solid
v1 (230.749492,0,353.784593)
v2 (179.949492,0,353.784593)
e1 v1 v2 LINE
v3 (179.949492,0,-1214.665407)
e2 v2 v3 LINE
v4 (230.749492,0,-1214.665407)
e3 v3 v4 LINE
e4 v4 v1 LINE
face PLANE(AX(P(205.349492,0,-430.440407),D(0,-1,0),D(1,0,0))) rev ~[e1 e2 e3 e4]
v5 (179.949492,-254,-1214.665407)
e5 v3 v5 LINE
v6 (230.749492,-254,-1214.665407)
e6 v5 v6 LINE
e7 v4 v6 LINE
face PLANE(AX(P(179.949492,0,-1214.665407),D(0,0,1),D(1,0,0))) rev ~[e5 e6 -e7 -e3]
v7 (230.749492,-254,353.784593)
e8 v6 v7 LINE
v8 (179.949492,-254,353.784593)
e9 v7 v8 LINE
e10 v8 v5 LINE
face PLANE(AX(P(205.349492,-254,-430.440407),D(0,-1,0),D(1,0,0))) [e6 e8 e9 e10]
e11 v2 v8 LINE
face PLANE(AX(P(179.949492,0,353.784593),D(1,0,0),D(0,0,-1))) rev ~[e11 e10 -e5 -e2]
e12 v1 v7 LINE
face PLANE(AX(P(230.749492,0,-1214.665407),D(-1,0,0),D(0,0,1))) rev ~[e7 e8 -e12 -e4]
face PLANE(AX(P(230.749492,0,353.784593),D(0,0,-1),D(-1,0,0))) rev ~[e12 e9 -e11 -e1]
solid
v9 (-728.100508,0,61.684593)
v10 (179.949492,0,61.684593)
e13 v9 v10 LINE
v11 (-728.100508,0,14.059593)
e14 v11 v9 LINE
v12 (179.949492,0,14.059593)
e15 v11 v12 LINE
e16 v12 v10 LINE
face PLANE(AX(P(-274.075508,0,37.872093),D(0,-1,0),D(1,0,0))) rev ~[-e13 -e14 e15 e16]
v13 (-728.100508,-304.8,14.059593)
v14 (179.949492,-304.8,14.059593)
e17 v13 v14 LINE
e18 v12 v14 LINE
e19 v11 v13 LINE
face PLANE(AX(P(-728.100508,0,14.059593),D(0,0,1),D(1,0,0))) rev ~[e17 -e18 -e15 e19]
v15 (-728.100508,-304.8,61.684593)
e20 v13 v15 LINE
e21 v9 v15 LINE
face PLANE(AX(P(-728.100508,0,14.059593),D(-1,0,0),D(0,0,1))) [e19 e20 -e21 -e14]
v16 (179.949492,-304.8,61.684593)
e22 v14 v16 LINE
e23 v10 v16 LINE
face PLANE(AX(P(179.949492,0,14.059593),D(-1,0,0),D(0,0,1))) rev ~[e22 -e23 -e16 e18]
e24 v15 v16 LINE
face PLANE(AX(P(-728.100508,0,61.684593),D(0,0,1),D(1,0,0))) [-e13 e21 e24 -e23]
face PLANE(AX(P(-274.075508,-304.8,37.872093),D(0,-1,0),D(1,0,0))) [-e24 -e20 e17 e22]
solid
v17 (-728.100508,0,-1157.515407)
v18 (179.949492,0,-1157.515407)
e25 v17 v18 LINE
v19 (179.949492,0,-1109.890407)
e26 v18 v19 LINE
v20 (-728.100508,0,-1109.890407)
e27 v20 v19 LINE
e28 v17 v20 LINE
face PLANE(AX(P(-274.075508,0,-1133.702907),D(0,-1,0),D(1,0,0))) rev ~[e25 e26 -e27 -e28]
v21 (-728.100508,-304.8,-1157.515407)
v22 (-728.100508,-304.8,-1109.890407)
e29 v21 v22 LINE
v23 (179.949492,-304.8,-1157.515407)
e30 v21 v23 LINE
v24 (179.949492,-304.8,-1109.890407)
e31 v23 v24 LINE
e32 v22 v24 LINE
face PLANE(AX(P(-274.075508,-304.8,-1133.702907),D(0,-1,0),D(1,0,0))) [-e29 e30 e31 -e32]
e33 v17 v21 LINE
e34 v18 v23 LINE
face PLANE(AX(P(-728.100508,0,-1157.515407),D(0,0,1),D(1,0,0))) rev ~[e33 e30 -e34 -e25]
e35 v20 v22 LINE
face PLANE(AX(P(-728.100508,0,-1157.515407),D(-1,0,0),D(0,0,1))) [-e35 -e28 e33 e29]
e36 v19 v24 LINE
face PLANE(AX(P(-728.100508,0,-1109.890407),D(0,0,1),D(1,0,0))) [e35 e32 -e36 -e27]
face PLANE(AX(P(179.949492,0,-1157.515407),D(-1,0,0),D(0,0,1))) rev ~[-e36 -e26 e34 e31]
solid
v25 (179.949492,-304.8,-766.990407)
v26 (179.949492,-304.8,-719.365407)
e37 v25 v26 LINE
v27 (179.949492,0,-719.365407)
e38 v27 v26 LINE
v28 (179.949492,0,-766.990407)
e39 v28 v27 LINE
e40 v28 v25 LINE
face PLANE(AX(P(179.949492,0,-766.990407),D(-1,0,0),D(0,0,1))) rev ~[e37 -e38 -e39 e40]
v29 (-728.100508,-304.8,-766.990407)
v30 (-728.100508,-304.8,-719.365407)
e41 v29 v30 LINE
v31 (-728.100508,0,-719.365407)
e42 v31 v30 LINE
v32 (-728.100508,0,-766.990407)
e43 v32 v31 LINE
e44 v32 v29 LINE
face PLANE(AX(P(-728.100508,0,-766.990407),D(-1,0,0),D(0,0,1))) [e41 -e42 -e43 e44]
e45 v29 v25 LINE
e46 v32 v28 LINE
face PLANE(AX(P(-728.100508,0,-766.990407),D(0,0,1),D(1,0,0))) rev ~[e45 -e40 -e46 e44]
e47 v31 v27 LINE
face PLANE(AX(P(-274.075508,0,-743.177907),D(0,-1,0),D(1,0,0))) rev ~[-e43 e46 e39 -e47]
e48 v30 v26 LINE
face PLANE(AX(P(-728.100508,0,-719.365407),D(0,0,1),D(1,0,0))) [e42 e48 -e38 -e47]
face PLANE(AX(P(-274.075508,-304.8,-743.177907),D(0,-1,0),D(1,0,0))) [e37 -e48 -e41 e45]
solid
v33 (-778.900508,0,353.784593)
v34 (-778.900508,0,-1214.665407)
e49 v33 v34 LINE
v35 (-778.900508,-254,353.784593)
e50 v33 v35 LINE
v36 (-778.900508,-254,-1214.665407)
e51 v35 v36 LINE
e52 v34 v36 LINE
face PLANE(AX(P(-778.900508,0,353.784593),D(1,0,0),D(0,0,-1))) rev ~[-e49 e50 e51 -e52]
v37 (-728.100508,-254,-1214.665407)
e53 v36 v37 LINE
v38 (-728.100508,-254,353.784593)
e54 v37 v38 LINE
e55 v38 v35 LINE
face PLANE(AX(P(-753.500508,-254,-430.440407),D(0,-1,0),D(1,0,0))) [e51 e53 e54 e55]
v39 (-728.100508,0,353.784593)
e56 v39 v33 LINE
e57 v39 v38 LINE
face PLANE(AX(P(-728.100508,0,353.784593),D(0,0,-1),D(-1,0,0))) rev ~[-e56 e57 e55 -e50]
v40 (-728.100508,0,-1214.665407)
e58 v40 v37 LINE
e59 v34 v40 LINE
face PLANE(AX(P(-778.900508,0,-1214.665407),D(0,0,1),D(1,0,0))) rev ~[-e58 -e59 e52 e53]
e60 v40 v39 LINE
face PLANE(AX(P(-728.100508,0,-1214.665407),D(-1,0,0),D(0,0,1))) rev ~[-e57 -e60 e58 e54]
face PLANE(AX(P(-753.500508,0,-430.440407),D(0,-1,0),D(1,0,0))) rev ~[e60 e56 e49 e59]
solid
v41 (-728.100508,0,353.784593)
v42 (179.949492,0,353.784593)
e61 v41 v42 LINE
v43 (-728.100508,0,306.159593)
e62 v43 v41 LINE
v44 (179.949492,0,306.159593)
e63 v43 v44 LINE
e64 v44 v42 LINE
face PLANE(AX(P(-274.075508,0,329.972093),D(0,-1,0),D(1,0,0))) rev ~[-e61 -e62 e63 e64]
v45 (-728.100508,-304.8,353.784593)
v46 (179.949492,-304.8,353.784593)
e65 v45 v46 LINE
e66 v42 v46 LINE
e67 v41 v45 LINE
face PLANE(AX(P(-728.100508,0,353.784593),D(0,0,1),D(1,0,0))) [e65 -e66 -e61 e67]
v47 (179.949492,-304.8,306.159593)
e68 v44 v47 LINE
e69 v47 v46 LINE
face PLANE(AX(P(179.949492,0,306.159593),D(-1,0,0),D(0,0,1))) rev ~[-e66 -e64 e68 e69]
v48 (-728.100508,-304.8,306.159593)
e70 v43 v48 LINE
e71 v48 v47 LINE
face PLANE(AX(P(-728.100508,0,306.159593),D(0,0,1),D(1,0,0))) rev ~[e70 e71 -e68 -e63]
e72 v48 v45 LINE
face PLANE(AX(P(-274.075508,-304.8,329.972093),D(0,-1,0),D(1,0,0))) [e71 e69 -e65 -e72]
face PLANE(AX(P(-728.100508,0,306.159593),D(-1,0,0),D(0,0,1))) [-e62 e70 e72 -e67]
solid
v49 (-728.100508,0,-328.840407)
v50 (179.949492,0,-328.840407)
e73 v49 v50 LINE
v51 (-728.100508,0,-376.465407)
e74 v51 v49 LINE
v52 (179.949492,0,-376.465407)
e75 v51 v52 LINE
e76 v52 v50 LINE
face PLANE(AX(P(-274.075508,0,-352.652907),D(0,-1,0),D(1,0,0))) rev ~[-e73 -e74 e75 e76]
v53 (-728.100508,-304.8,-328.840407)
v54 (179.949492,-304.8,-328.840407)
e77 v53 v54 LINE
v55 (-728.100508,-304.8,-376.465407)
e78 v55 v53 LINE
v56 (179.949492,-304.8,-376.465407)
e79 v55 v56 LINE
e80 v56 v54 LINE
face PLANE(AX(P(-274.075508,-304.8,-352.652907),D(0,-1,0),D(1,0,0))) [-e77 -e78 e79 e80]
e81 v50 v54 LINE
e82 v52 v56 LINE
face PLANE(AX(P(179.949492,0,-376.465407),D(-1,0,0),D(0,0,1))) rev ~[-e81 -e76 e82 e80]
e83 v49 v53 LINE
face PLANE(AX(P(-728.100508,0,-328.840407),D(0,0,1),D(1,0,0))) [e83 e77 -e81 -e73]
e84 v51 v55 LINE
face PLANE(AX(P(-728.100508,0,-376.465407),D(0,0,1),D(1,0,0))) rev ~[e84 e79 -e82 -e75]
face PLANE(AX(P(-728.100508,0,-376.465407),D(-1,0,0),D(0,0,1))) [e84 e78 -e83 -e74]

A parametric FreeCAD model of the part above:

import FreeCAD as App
import Part
import Sketcher

V = App.Vector
Q = App.Units.Quantity


def add_polygon(sketch, points):
    """Adds a closed chain of lines whose ends are joined by coincident constraints."""
    first, n = sketch.GeometryCount, len(points)
    for a, b in zip(points, points[1:] + points[:1]):
        sketch.addGeometry(Part.LineSegment(App.Vector(*a, 0), App.Vector(*b, 0)), False)
    for i in range(n):
        sketch.addConstraint(Sketcher.Constraint("Coincident", first + i, 2, first + (i + 1) % n, 1))

doc = App.newDocument("Part")
body = doc.addObject("PartDesign::Body", "Body")
body.AllowCompound = True

# Sketch on XZ plane
sketch1 = body.newObject("Sketcher::SketchObject", "Sketch")
sketch1.AttachmentSupport = (doc.getObject("XZ_Plane"), [""])
sketch1.MapMode = "FlatFace"
add_polygon(sketch1, [(-728, 354), (-779, 354), (-779, -1215), (-728, -1215)])  # lines 0-3
add_polygon(sketch1, [(231, 354), (180, 354), (180, -1215), (231, -1215)])  # lines 4-7
sketch1.addConstraint(Sketcher.Constraint("Horizontal", 0))
sketch1.addConstraint(Sketcher.Constraint("Vertical", 1))
sketch1.addConstraint(Sketcher.Constraint("Horizontal", 2))
sketch1.addConstraint(Sketcher.Constraint("Vertical", 3))
sketch1.addConstraint(Sketcher.Constraint("Horizontal", 4))
sketch1.addConstraint(Sketcher.Constraint("Vertical", 5))
sketch1.addConstraint(Sketcher.Constraint("Horizontal", 6))
sketch1.addConstraint(Sketcher.Constraint("Vertical", 7))
sketch1.addConstraint(Sketcher.Constraint("Horizontal", 3, 2, 4, 2))
sketch1.addConstraint(Sketcher.Constraint("Horizontal", 2, 2, 5, 2))
sketch1.addConstraint(Sketcher.Constraint("Equal", 2, 4))
sketch1.addConstraint(Sketcher.Constraint("DistanceX", 0, 2, 0, 1, Q("2 in")))
sketch1.addConstraint(Sketcher.Constraint("DistanceY", 1, 2, 1, 1, Q("61.75 in")))
sketch1.addConstraint(Sketcher.Constraint("DistanceX", 3, 2, 4, 2, Q("35.75 in")))
sketch1.addConstraint(Sketcher.Constraint("DistanceX", 2, 2, -1, 1, Q("728.100508 mm")))
sketch1.addConstraint(Sketcher.Constraint("DistanceY", -1, 1, 0, 2, Q("353.784593 mm")))
pad1 = body.newObject("PartDesign::Pad", "Pad")
pad1.Profile = sketch1
pad1.Length = Q("10 in")
body2 = doc.addObject("PartDesign::Body", "Body001")
body2.AllowCompound = True

# Sketch on XZ plane
sketch2 = body2.newObject("Sketcher::SketchObject", "Sketch001")
sketch2.AttachmentSupport = (doc.getObject("XZ_Plane001"), [""])
sketch2.MapMode = "FlatFace"
add_polygon(sketch2, [(-728, 354), (-728, 306), (180, 306), (180, 354)])  # lines 0-3
add_polygon(sketch2, [(-728, 62), (-728, 14), (180, 14), (180, 62)])  # lines 4-7
add_polygon(sketch2, [(-728, -329), (-728, -376), (180, -376), (180, -329)])  # lines 8-11
add_polygon(sketch2, [(-728, -719), (-728, -767), (180, -767), (180, -719)])  # lines 12-15
add_polygon(sketch2, [(-728, -1110), (-728, -1158), (180, -1158), (180, -1110)])  # lines 16-19
sketch2.addConstraint(Sketcher.Constraint("Vertical", 0))
sketch2.addConstraint(Sketcher.Constraint("Horizontal", 1))
sketch2.addConstraint(Sketcher.Constraint("Vertical", 2))
sketch2.addConstraint(Sketcher.Constraint("Horizontal", 3))
sketch2.addConstraint(Sketcher.Constraint("Vertical", 4))
sketch2.addConstraint(Sketcher.Constraint("Horizontal", 5))
sketch2.addConstraint(Sketcher.Constraint("Vertical", 6))
sketch2.addConstraint(Sketcher.Constraint("Horizontal", 7))
sketch2.addConstraint(Sketcher.Constraint("Vertical", 8))
sketch2.addConstraint(Sketcher.Constraint("Horizontal", 9))
sketch2.addConstraint(Sketcher.Constraint("Vertical", 10))
sketch2.addConstraint(Sketcher.Constraint("Horizontal", 11))
sketch2.addConstraint(Sketcher.Constraint("Vertical", 12))
sketch2.addConstraint(Sketcher.Constraint("Horizontal", 13))
sketch2.addConstraint(Sketcher.Constraint("Vertical", 14))
sketch2.addConstraint(Sketcher.Constraint("Horizontal", 15))
sketch2.addConstraint(Sketcher.Constraint("Vertical", 16))
sketch2.addConstraint(Sketcher.Constraint("Horizontal", 17))
sketch2.addConstraint(Sketcher.Constraint("Vertical", 18))
sketch2.addConstraint(Sketcher.Constraint("Horizontal", 19))
sketch2.addConstraint(Sketcher.Constraint("Vertical", 3, 2, 4, 2))
sketch2.addConstraint(Sketcher.Constraint("Vertical", 2, 2, 5, 2))
sketch2.addConstraint(Sketcher.Constraint("Vertical", 7, 2, 8, 2))
sketch2.addConstraint(Sketcher.Constraint("Vertical", 6, 2, 9, 2))
sketch2.addConstraint(Sketcher.Constraint("Vertical", 11, 2, 12, 2))
sketch2.addConstraint(Sketcher.Constraint("Vertical", 10, 2, 13, 2))
sketch2.addConstraint(Sketcher.Constraint("Vertical", 15, 2, 16, 2))
sketch2.addConstraint(Sketcher.Constraint("Vertical", 14, 2, 17, 2))
sketch2.addConstraint(Sketcher.Constraint("Equal", 2, 4))
sketch2.addConstraint(Sketcher.Constraint("Equal", 6, 8))
sketch2.addConstraint(Sketcher.Constraint("Equal", 10, 12))
sketch2.addConstraint(Sketcher.Constraint("Equal", 14, 16))
sketch2.addConstraint(Sketcher.Constraint("DistanceY", 10, 2, 1, 2, Q("25 in")))
sketch2.addConstraint(Sketcher.Constraint("DistanceX", 1, 1, 1, 2, Q("35.75 in")))
sketch2.addConstraint(Sketcher.Constraint("DistanceY", 4, 2, 0, 2, Q("11.5 in")))
sketch2.addConstraint(Sketcher.Constraint("DistanceY", 14, 2, 9, 2, Q("13.5 in")))
sketch2.addConstraint(Sketcher.Constraint("DistanceY", 18, 2, 13, 2, Q("13.5 in")))
sketch2.addConstraint(Sketcher.Constraint("DistanceY", 0, 2, 0, 1, Q("1.875 in")))
sketch2.addConstraint(Sketcher.Constraint("DistanceX", 0, 2, -1, 1, Q("728.100508 mm")))
sketch2.addConstraint(Sketcher.Constraint("DistanceY", -1, 1, 0, 2, Q("306.159593 mm")))
pad2 = body2.newObject("PartDesign::Pad", "Pad001")
pad2.Profile = sketch2
pad2.Length = Q("12 in")

doc.recompute()
